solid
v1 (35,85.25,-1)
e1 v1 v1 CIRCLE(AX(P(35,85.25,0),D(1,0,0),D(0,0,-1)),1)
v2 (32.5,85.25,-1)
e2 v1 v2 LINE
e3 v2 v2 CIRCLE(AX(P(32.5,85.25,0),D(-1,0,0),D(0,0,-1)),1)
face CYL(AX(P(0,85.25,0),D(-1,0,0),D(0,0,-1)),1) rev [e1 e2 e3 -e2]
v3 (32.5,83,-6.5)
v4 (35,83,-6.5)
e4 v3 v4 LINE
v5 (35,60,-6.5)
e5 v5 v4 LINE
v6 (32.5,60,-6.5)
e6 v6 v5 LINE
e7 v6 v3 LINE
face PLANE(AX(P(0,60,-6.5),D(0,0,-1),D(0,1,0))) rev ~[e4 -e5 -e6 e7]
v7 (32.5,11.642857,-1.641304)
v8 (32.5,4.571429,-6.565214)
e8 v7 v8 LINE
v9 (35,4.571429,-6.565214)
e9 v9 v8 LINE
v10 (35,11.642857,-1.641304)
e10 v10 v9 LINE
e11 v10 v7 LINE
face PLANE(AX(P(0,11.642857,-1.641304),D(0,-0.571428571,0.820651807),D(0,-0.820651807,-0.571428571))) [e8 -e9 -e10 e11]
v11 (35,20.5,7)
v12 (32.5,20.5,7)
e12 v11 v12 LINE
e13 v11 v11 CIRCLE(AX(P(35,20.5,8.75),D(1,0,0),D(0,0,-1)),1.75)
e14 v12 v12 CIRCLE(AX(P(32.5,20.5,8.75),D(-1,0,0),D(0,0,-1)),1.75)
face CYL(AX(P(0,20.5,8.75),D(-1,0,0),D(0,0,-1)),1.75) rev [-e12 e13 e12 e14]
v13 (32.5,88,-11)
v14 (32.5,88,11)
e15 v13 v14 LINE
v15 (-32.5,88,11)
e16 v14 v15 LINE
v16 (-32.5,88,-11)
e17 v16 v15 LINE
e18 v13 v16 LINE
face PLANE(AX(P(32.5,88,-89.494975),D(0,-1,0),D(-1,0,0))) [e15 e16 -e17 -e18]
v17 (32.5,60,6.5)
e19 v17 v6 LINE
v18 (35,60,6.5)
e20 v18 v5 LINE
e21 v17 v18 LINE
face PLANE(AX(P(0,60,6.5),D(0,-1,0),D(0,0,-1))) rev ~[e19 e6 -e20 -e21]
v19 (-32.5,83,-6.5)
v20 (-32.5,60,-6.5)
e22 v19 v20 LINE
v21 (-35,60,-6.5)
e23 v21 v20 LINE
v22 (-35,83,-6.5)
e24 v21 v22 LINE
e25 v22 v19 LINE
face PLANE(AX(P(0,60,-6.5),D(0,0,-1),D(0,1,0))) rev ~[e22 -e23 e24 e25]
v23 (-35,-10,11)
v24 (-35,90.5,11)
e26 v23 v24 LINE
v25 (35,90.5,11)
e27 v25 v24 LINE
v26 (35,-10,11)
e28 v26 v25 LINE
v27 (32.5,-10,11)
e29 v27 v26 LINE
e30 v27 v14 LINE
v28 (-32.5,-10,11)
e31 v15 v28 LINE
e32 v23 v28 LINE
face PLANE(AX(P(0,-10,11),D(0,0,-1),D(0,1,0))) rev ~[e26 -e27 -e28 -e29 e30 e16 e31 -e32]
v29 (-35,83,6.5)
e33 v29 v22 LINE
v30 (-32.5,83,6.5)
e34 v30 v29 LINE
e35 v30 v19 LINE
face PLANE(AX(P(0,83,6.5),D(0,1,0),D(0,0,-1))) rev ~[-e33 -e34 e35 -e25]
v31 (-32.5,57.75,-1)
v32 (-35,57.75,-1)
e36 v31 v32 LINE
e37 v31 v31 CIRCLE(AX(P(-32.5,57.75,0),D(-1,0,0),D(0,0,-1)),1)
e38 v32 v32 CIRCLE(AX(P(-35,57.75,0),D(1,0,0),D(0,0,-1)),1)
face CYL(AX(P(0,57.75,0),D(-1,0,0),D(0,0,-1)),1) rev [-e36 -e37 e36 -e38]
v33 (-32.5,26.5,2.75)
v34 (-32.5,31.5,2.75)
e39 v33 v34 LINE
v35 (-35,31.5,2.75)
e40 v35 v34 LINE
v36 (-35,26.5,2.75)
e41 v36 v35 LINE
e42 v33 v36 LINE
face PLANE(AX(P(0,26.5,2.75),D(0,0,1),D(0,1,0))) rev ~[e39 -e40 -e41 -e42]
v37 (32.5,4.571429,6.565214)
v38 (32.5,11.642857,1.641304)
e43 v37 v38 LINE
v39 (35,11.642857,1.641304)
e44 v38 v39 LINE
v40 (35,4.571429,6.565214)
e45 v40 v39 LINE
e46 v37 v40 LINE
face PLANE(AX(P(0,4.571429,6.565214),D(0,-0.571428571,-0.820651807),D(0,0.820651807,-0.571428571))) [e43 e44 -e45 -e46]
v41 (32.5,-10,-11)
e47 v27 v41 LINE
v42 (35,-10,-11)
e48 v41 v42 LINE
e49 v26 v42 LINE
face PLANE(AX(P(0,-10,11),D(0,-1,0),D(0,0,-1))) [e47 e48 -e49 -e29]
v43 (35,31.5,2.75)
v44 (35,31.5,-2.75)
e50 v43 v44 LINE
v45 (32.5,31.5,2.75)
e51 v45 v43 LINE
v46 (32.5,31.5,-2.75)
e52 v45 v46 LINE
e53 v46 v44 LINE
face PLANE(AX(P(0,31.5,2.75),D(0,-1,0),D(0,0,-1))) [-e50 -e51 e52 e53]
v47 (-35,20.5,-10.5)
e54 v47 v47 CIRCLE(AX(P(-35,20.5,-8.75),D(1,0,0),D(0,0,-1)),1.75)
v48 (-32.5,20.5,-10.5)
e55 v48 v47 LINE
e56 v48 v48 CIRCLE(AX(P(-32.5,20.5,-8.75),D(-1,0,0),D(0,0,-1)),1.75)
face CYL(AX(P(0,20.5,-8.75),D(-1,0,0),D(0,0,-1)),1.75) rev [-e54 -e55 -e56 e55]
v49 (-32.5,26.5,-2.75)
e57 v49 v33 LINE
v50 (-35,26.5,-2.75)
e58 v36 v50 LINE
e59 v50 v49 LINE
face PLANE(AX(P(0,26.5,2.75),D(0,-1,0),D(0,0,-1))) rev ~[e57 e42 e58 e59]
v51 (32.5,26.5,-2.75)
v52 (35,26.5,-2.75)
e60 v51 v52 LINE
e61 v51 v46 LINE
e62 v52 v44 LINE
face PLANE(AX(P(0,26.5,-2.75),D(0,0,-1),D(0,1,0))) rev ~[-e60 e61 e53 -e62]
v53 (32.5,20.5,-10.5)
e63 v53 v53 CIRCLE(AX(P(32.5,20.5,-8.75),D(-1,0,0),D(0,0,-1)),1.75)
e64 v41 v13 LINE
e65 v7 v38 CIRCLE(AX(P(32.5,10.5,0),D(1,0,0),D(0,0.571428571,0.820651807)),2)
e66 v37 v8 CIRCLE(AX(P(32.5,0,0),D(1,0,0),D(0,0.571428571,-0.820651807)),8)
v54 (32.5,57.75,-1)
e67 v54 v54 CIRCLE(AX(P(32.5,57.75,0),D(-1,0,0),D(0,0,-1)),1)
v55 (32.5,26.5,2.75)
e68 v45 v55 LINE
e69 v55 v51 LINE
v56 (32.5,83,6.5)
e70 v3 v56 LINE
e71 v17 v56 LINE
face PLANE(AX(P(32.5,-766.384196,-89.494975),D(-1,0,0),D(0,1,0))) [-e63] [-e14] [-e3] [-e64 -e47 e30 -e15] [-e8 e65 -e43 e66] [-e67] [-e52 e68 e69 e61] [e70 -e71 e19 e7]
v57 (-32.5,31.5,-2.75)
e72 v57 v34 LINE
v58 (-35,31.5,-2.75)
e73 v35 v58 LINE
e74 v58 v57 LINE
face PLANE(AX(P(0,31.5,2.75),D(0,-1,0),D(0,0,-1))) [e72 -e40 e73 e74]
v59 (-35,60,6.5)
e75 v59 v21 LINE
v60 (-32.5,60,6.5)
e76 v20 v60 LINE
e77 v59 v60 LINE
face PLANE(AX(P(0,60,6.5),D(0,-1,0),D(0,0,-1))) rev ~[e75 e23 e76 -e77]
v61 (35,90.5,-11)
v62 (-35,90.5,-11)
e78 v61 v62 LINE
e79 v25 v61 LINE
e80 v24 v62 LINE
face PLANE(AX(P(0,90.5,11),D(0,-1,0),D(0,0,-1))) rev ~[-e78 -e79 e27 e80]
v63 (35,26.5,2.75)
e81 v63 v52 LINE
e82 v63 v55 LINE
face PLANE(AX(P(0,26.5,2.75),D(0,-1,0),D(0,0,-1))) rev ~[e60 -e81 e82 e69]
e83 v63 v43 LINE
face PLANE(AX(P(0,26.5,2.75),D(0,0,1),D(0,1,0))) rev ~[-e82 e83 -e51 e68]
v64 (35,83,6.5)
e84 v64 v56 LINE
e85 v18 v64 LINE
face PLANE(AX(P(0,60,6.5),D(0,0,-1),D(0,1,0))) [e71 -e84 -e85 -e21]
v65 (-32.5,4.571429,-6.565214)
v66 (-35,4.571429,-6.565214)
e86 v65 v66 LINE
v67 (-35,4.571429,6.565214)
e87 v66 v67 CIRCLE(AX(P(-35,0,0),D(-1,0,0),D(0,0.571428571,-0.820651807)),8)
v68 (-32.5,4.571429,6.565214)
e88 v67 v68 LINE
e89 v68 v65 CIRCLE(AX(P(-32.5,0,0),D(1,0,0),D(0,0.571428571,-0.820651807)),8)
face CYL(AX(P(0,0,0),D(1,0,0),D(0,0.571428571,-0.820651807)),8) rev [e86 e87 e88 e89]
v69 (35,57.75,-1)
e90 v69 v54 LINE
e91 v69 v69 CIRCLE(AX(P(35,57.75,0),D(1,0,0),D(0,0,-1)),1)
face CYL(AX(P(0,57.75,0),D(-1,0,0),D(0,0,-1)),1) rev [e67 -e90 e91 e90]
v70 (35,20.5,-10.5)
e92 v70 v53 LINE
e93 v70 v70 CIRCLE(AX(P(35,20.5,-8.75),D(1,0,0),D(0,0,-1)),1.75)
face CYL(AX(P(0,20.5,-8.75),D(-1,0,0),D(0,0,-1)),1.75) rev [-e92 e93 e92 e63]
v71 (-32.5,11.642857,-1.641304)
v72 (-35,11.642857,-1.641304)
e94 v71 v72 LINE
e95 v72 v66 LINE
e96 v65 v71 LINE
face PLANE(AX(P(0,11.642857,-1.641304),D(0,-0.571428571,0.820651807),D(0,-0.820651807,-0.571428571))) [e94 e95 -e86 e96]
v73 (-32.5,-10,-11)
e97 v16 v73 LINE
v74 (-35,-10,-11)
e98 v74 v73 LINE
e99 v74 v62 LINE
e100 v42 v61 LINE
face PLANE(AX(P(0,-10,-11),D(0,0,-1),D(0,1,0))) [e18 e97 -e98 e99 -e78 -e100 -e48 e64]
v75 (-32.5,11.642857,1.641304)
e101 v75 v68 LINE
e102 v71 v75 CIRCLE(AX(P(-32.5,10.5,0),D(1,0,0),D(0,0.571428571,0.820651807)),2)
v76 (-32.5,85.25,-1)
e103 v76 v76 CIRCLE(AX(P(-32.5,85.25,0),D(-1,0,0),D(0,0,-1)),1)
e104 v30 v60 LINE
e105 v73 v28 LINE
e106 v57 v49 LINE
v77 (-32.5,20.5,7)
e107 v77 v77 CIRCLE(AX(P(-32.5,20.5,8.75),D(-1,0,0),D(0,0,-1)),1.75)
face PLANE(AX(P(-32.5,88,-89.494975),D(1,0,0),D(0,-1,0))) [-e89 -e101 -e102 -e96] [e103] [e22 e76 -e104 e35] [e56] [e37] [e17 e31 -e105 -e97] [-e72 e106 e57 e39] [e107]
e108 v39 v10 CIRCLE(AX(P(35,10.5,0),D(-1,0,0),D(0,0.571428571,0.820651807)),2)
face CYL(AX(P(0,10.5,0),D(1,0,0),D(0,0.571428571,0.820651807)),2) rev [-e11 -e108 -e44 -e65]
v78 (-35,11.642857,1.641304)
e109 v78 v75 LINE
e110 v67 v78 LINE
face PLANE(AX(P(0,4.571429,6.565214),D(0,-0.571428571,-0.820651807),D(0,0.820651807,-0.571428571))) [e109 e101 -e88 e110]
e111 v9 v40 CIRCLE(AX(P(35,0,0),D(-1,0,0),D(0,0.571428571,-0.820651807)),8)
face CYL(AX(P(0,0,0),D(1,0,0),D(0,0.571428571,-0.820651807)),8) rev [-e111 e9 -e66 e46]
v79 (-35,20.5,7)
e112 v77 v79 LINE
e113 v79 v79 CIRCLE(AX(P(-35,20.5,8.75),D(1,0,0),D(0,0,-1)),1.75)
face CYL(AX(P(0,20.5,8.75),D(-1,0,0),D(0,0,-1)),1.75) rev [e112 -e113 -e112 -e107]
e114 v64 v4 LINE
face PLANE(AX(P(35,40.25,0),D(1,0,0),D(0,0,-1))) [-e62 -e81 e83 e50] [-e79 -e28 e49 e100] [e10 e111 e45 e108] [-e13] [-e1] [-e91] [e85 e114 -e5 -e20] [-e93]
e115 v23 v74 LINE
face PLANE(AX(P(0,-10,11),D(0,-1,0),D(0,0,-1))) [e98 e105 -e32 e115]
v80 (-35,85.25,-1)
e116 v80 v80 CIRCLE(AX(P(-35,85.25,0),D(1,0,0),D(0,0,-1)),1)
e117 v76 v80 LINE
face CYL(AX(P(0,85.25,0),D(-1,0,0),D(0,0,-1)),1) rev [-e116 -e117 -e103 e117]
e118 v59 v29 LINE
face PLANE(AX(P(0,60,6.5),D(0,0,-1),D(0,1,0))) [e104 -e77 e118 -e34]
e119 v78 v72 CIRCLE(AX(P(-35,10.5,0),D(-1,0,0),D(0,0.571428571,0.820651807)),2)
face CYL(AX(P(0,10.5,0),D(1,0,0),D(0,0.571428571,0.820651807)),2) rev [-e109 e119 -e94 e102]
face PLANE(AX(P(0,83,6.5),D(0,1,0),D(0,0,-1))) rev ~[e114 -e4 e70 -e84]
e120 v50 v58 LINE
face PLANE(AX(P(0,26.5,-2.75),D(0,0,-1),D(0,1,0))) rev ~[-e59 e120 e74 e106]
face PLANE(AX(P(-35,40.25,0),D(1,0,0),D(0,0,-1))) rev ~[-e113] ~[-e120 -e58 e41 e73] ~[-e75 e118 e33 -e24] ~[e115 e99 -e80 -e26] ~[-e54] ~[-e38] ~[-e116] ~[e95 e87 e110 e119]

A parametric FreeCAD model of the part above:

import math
import FreeCAD as App
import Part
import Sketcher
Q = App.Units.Quantity

doc = App.newDocument("Part")
params = doc.addObject("Spreadsheet::Sheet", "Params")
for row, (alias, value) in enumerate([
    ("sketch1_diameter", "2 mm"),
    ("sketch1_radius", "8 mm"),
    ("sketch1_radius2", "2 mm"),
    ("sketch1_diameter2", "3.5 mm"),
    ("sketch1_width", "5 mm"),
    ("pad1_length", "70 mm"),
    ("sketch2_width", "65 mm"),
], start=1):
    params.set(f"A{row}", alias)
    params.set(f"B{row}", "=" + value)
    params.setAlias(f"B{row}", alias)

body = doc.addObject("PartDesign::Body", "Body")

sketch1 = body.newObject("Sketcher::SketchObject", "Sketch")
sketch1.AttachmentSupport = (doc.getObject("YZ_Plane"), [""])
sketch1.MapMode = "FlatFace"
sketch1.addGeometry(Part.LineSegment(App.Vector(90.5, 11, 0), App.Vector(-10, 11, 0)), False)
sketch1.addGeometry(Part.LineSegment(App.Vector(-10, 11, 0), App.Vector(-10, -11, 0)), False)
sketch1.addGeometry(Part.LineSegment(App.Vector(-10, -11, 0), App.Vector(90.5, -11, 0)), False)
sketch1.addGeometry(Part.LineSegment(App.Vector(90.5, -11, 0), App.Vector(90.5, 11, 0)), False)
sketch1.addGeometry(Part.ArcOfCircle(Part.Circle(App.Vector(0, 0, 0), App.Vector(0, 0, 1), 8), math.radians(55), math.radians(305)), False)
sketch1.addGeometry(Part.LineSegment(App.Vector(4.6, 6.6, 0), App.Vector(11.6, 1.6, 0)), False)
sketch1.addGeometry(Part.ArcOfCircle(Part.Circle(App.Vector(10.5, 0, 0), App.Vector(0, 0, 1), 2), math.radians(-55), math.radians(55)), False)
sketch1.addGeometry(Part.LineSegment(App.Vector(11.6, -1.6, 0), App.Vector(4.6, -6.6, 0)), False)
sketch1.addGeometry(Part.Circle(App.Vector(20.5, 8.8, 0), App.Vector(0, 0, 1), 1.8), False)
sketch1.addGeometry(Part.LineSegment(App.Vector(26.5, -2.8, 0), App.Vector(26.5, 2.8, 0)), False)
sketch1.addGeometry(Part.LineSegment(App.Vector(26.5, 2.8, 0), App.Vector(31.5, 2.8, 0)), False)
sketch1.addGeometry(Part.LineSegment(App.Vector(31.5, 2.8, 0), App.Vector(31.5, -2.8, 0)), False)
sketch1.addGeometry(Part.LineSegment(App.Vector(31.5, -2.8, 0), App.Vector(26.5, -2.8, 0)), False)
sketch1.addGeometry(Part.Circle(App.Vector(20.5, -8.8, 0), App.Vector(0, 0, 1), 1.8), False)
sketch1.addGeometry(Part.Circle(App.Vector(57.8, 0, 0), App.Vector(0, 0, 1), 1), False)
sketch1.addGeometry(Part.LineSegment(App.Vector(60, -6.5, 0), App.Vector(60, 6.5, 0)), False)
sketch1.addGeometry(Part.LineSegment(App.Vector(60, 6.5, 0), App.Vector(83, 6.5, 0)), False)
sketch1.addGeometry(Part.LineSegment(App.Vector(83, 6.5, 0), App.Vector(83, -6.5, 0)), False)
sketch1.addGeometry(Part.LineSegment(App.Vector(83, -6.5, 0), App.Vector(60, -6.5, 0)), False)
sketch1.addGeometry(Part.Circle(App.Vector(85.2, 0, 0), App.Vector(0, 0, 1), 1), False)
sketch1.addConstraint(Sketcher.Constraint("Coincident", 0, 2, 1, 1))
sketch1.addConstraint(Sketcher.Constraint("Coincident", 1, 2, 2, 1))
sketch1.addConstraint(Sketcher.Constraint("Coincident", 2, 2, 3, 1))
sketch1.addConstraint(Sketcher.Constraint("Coincident", 3, 2, 0, 1))
sketch1.addConstraint(Sketcher.Constraint("Tangent", 4, 1, 5, 1))
sketch1.addConstraint(Sketcher.Constraint("Tangent", 5, 2, 6, 2))
sketch1.addConstraint(Sketcher.Constraint("Tangent", 6, 1, 7, 1))
sketch1.addConstraint(Sketcher.Constraint("Tangent", 7, 2, 4, 2))
sketch1.addConstraint(Sketcher.Constraint("Coincident", 9, 2, 10, 1))
sketch1.addConstraint(Sketcher.Constraint("Coincident", 10, 2, 11, 1))
sketch1.addConstraint(Sketcher.Constraint("Coincident", 11, 2, 12, 1))
sketch1.addConstraint(Sketcher.Constraint("Coincident", 12, 2, 9, 1))
sketch1.addConstraint(Sketcher.Constraint("Coincident", 15, 2, 16, 1))
sketch1.addConstraint(Sketcher.Constraint("Coincident", 16, 2, 17, 1))
sketch1.addConstraint(Sketcher.Constraint("Coincident", 17, 2, 18, 1))
sketch1.addConstraint(Sketcher.Constraint("Coincident", 18, 2, 15, 1))
sketch1.addConstraint(Sketcher.Constraint("Horizontal", 0))
sketch1.addConstraint(Sketcher.Constraint("Vertical", 1))
sketch1.addConstraint(Sketcher.Constraint("Horizontal", 2))
sketch1.addConstraint(Sketcher.Constraint("Vertical", 3))
sketch1.addConstraint(Sketcher.Constraint("Vertical", 9))
sketch1.addConstraint(Sketcher.Constraint("Horizontal", 10))
sketch1.addConstraint(Sketcher.Constraint("Vertical", 11))
sketch1.addConstraint(Sketcher.Constraint("Horizontal", 12))
sketch1.addConstraint(Sketcher.Constraint("Vertical", 15))
sketch1.addConstraint(Sketcher.Constraint("Horizontal", 16))
sketch1.addConstraint(Sketcher.Constraint("Vertical", 17))
sketch1.addConstraint(Sketcher.Constraint("Horizontal", 18))
sketch1.addConstraint(Sketcher.Constraint("Coincident", 4, 3, -1, 1))
sketch1.addConstraint(Sketcher.Constraint("Equal", 8, 13))
sketch1.addConstraint(Sketcher.Constraint("Equal", 14, 19))
sketch1.addConstraint(Sketcher.Constraint("Symmetric", 8, 3, 13, 3, -1))
sketch1.addConstraint(Sketcher.Constraint("PointOnObject", 6, 3, -1))
sketch1.addConstraint(Sketcher.Constraint("PointOnObject", 14, 3, -1))
sketch1.addConstraint(Sketcher.Constraint("PointOnObject", 19, 3, -1))
sketch1.addConstraint(Sketcher.Constraint("Diameter", 14, Q("2 mm")))
sketch1.addConstraint(Sketcher.Constraint("Radius", 4, Q("8 mm")))
sketch1.addConstraint(Sketcher.Constraint("Radius", 6, Q("2 mm")))
sketch1.addConstraint(Sketcher.Constraint("Diameter", 8, Q("3.5 mm")))
sketch1.addConstraint(Sketcher.Constraint("DistanceX", 10, 1, 10, 2, Q("5 mm")))
sketch1.addConstraint(Sketcher.Constraint("DistanceX", 16, 1, 16, 2, Q("23 mm")))
sketch1.addConstraint(Sketcher.Constraint("DistanceY", 1, 2, 1, 1, Q("22 mm")))
sketch1.addConstraint(Sketcher.Constraint("DistanceY", 15, 1, 15, 2, Q("13 mm")))
sketch1.addConstraint(Sketcher.Constraint("DistanceX", 0, 2, 0, 1, Q("100.5 mm")))
sketch1.addConstraint(Sketcher.Constraint("DistanceY", 9, 1, 9, 2, Q("5.5 mm")))
sketch1.addConstraint(Sketcher.Constraint("DistanceX", 0, 2, -1, 1, Q("10 mm")))
sketch1.addConstraint(Sketcher.Constraint("DistanceY", -1, 1, 0, 2, Q("11 mm")))
sketch1.addConstraint(Sketcher.Constraint("DistanceX", -1, 1, 15, 2, Q("60 mm")))
sketch1.addConstraint(Sketcher.Constraint("DistanceX", 6, 3, 8, 3, Q("10 mm")))
sketch1.addConstraint(Sketcher.Constraint("DistanceX", 13, 3, 2, 2, Q("70 mm")))
sketch1.addConstraint(Sketcher.Constraint("DistanceX", 8, 3, 9, 2, Q("6 mm")))
sketch1.addConstraint(Sketcher.Constraint("DistanceY", 9, 2, 8, 3, Q("6 mm")))
sketch1.addConstraint(Sketcher.Constraint("DistanceY", 13, 3, 11, 2, Q("6 mm")))
sketch1.addConstraint(Sketcher.Constraint("DistanceY", -1, 1, 15, 2, Q("6.5 mm")))
sketch1.addConstraint(Sketcher.Constraint("DistanceX", 14, 3, 19, 3, Q("27.5 mm")))
sketch1.addConstraint(Sketcher.Constraint("DistanceX", -1, 1, 14, 3, Q("57.75 mm")))
sketch1.setExpression("Constraints[35]", "Params.sketch1_diameter")
sketch1.setExpression("Constraints[36]", "Params.sketch1_radius")
sketch1.setExpression("Constraints[37]", "Params.sketch1_radius2")
sketch1.setExpression("Constraints[38]", "Params.sketch1_diameter2")
sketch1.setExpression("Constraints[39]", "Params.sketch1_width")
pad1 = body.newObject("PartDesign::Pad", "Pad")
pad1.Profile = sketch1
pad1.setExpression("Length", "Params.pad1_length")
pad1.Midplane = True

sketch2 = body.newObject("Sketcher::SketchObject", "Sketch001")
sketch2.AttachmentSupport = (doc.getObject("XY_Plane"), [""])
sketch2.MapMode = "FlatFace"
sketch2.AttachmentOffset = App.Placement(App.Vector(0, 0, 11), App.Rotation())
sketch2.addGeometry(Part.LineSegment(App.Vector(32, 88, 0), App.Vector(-32, 88, 0)), False)
sketch2.addGeometry(Part.LineSegment(App.Vector(-32, 88, 0), App.Vector(-32, -766, 0)), False)
sketch2.addGeometry(Part.LineSegment(App.Vector(-32, -766, 0), App.Vector(32, -766, 0)), False)
sketch2.addGeometry(Part.LineSegment(App.Vector(32, -766, 0), App.Vector(32, 88, 0)), False)
sketch2.addConstraint(Sketcher.Constraint("Coincident", 0, 2, 1, 1))
sketch2.addConstraint(Sketcher.Constraint("Coincident", 1, 2, 2, 1))
sketch2.addConstraint(Sketcher.Constraint("Coincident", 2, 2, 3, 1))
sketch2.addConstraint(Sketcher.Constraint("Coincident", 3, 2, 0, 1))
sketch2.addConstraint(Sketcher.Constraint("Horizontal", 0))
sketch2.addConstraint(Sketcher.Constraint("Vertical", 1))
sketch2.addConstraint(Sketcher.Constraint("Horizontal", 2))
sketch2.addConstraint(Sketcher.Constraint("Vertical", 3))
sketch2.addConstraint(Sketcher.Constraint("DistanceX", 0, 2, 0, 1, Q("65 mm")))
sketch2.addConstraint(Sketcher.Constraint("DistanceY", -1, 1, 0, 2, Q("88 mm")))
sketch2.addConstraint(Sketcher.Constraint("DistanceX", 0, 2, -1, 1, Q("32.5 mm")))
sketch2.addConstraint(Sketcher.Constraint("DistanceY", 1, 2, 1, 1, Q("854.384196 mm")))
sketch2.setExpression("Constraints[8]", "Params.sketch2_width")
pocket1 = body.newObject("PartDesign::Pocket", "Pocket")
pocket1.Profile = sketch2
pocket1.Type = "ThroughAll"
pocket1.Midplane = True

doc.recompute()
